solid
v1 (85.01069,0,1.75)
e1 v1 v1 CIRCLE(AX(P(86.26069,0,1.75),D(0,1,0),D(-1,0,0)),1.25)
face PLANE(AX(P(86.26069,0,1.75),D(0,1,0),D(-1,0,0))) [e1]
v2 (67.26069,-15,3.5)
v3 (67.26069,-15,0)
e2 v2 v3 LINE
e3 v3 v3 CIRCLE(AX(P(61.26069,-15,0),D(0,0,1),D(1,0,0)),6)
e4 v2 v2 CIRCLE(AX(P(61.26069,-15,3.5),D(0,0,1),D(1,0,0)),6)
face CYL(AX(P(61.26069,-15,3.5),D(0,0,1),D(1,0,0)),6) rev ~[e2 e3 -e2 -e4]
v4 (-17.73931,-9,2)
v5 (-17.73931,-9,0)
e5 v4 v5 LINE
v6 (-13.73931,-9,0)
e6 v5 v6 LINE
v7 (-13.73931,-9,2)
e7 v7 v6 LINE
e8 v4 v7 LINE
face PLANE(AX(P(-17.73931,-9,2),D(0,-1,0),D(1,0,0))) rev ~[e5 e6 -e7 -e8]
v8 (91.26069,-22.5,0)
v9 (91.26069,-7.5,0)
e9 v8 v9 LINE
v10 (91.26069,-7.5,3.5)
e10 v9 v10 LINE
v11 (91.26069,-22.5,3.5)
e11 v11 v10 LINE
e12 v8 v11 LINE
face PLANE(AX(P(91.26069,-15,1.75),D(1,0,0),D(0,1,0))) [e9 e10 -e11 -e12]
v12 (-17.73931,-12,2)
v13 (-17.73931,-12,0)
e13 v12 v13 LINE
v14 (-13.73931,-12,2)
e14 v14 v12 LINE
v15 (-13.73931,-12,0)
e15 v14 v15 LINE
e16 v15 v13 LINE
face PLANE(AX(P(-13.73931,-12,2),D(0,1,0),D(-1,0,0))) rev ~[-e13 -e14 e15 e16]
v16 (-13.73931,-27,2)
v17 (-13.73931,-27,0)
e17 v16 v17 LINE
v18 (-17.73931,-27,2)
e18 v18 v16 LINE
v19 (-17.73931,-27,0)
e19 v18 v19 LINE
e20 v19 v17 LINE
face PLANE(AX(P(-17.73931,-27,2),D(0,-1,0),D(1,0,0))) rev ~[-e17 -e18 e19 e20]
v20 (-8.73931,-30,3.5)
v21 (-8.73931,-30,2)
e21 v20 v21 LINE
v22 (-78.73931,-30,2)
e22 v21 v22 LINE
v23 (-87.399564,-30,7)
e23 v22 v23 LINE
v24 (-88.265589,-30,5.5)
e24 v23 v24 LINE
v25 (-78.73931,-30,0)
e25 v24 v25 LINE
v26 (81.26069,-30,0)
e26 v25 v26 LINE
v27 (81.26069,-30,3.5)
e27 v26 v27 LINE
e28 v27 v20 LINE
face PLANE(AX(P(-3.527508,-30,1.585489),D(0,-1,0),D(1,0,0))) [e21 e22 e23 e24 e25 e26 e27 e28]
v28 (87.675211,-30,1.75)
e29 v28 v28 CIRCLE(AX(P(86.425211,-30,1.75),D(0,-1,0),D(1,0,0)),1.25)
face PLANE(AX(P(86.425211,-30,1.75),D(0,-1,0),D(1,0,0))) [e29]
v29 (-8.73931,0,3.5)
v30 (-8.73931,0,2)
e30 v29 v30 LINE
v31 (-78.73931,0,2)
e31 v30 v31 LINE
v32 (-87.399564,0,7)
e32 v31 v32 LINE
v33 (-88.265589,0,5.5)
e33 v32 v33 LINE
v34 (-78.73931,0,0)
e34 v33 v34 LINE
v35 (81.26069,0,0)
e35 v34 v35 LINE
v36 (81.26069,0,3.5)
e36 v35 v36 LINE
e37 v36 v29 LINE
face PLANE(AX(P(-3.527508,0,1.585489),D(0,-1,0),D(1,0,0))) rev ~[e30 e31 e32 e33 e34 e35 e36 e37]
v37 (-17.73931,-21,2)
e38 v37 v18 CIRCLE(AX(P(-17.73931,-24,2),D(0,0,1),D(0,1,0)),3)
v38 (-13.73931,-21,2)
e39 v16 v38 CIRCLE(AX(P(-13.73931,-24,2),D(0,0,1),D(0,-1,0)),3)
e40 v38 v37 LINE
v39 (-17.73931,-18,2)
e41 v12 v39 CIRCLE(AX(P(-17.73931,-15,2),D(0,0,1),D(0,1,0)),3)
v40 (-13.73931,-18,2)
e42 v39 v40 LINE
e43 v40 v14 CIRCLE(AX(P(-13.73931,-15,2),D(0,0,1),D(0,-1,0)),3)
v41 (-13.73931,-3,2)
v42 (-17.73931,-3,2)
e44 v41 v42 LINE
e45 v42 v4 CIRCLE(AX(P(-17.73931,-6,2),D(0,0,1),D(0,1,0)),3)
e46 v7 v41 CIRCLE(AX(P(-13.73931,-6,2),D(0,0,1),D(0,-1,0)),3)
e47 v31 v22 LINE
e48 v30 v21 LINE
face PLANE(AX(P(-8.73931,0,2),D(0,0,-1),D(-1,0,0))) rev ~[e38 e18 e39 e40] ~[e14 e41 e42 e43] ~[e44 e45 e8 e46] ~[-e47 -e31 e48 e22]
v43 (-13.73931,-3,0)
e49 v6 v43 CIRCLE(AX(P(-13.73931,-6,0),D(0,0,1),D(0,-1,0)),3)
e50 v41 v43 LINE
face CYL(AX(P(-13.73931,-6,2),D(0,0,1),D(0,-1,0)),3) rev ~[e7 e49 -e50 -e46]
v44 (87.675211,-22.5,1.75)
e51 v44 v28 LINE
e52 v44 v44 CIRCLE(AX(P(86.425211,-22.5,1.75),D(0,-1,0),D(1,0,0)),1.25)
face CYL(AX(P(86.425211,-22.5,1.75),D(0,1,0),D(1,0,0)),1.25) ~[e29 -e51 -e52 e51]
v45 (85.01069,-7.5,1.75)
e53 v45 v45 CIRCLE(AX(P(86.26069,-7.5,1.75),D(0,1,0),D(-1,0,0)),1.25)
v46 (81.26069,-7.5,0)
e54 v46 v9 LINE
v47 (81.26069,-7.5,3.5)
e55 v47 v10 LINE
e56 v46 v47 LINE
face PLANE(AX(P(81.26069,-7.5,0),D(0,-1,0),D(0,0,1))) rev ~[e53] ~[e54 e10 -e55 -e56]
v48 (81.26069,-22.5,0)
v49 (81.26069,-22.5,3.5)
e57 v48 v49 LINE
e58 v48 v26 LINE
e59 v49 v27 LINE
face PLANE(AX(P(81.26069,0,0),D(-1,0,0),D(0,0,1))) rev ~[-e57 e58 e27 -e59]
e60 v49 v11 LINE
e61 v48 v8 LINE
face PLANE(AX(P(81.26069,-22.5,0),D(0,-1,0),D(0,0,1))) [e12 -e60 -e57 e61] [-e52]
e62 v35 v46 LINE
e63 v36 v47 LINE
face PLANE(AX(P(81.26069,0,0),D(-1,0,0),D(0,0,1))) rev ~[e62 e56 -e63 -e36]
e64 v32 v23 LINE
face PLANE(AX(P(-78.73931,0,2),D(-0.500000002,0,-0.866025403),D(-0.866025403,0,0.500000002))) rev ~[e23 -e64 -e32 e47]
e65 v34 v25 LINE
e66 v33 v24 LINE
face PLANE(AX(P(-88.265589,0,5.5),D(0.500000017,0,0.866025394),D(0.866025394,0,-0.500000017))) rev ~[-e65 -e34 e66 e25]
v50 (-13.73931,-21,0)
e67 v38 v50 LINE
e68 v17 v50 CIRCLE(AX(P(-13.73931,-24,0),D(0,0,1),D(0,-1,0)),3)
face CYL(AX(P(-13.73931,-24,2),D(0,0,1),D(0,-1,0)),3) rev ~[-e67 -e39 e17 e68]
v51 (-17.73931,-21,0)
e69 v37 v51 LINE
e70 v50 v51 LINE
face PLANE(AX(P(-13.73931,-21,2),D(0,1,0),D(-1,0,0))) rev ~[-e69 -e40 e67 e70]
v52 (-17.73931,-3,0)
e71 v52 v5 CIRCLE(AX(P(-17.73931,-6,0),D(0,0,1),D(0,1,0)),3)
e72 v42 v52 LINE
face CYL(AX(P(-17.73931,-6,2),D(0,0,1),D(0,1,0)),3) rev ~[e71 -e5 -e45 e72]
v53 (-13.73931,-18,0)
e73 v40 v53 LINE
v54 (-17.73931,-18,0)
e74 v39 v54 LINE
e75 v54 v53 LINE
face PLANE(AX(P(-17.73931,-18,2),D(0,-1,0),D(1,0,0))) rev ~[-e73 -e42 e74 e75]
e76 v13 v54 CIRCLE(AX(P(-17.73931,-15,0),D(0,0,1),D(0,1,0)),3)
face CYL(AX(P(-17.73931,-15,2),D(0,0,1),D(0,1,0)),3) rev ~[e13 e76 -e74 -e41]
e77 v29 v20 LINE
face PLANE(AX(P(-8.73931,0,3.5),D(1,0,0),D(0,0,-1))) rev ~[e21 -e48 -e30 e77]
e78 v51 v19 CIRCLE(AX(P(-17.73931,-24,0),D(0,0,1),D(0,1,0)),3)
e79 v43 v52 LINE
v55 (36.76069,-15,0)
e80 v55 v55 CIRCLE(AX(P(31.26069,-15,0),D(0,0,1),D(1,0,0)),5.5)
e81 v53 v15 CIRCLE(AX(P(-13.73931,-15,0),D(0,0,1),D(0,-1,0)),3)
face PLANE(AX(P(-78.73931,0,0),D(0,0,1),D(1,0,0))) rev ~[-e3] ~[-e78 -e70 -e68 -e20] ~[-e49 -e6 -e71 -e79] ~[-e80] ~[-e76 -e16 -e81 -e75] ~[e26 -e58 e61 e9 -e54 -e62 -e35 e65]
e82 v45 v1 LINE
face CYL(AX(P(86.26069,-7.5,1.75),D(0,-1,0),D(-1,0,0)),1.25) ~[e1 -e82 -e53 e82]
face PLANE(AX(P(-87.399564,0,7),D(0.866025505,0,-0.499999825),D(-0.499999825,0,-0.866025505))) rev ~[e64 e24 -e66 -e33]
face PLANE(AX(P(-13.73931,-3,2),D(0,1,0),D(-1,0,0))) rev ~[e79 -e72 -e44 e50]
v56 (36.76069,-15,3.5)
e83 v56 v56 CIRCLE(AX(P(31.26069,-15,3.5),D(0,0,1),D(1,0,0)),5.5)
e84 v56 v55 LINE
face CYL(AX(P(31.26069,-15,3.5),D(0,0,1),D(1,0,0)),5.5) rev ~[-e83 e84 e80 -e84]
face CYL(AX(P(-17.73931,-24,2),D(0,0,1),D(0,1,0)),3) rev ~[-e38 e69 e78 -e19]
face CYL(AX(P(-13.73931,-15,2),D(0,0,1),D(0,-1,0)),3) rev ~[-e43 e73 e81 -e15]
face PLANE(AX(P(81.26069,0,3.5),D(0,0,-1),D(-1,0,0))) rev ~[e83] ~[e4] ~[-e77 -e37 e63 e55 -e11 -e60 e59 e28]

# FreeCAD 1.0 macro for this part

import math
import FreeCAD as App
import Part
import Sketcher
Q = App.Units.Quantity

doc = App.newDocument("Part")
body = doc.addObject("PartDesign::Body", "Body")

sketch1 = body.newObject("Sketcher::SketchObject", "Sketch")
sketch1.AttachmentSupport = (doc.getObject("XZ_Plane"), [""])
sketch1.MapMode = "FlatFace"
sketch1.addGeometry(Part.LineSegment(App.Vector(-8.7, 2, 0), App.Vector(-78.7, 2, 0)), False)
sketch1.addGeometry(Part.LineSegment(App.Vector(-78.7, 2, 0), App.Vector(-87.4, 7, 0)), False)
sketch1.addGeometry(Part.LineSegment(App.Vector(-87.4, 7, 0), App.Vector(-88.3, 5.5, 0)), False)
sketch1.addGeometry(Part.LineSegment(App.Vector(-88.3, 5.5, 0), App.Vector(-78.7, 0, 0)), False)
sketch1.addGeometry(Part.LineSegment(App.Vector(-78.7, 0, 0), App.Vector(81.3, 0, 0)), False)
sketch1.addGeometry(Part.LineSegment(App.Vector(81.3, 0, 0), App.Vector(81.3, 3.5, 0)), False)
sketch1.addGeometry(Part.LineSegment(App.Vector(81.3, 3.5, 0), App.Vector(-8.7, 3.5, 0)), False)
sketch1.addGeometry(Part.LineSegment(App.Vector(-8.7, 3.5, 0), App.Vector(-8.7, 2, 0)), False)
sketch1.addConstraint(Sketcher.Constraint("Coincident", 0, 2, 1, 1))
sketch1.addConstraint(Sketcher.Constraint("Coincident", 1, 2, 2, 1))
sketch1.addConstraint(Sketcher.Constraint("Coincident", 2, 2, 3, 1))
sketch1.addConstraint(Sketcher.Constraint("Coincident", 3, 2, 4, 1))
sketch1.addConstraint(Sketcher.Constraint("Coincident", 4, 2, 5, 1))
sketch1.addConstraint(Sketcher.Constraint("Coincident", 5, 2, 6, 1))
sketch1.addConstraint(Sketcher.Constraint("Coincident", 6, 2, 7, 1))
sketch1.addConstraint(Sketcher.Constraint("Coincident", 7, 2, 0, 1))
sketch1.addConstraint(Sketcher.Constraint("Horizontal", 0))
sketch1.addConstraint(Sketcher.Constraint("Horizontal", 4))
sketch1.addConstraint(Sketcher.Constraint("Vertical", 5))
sketch1.addConstraint(Sketcher.Constraint("Horizontal", 6))
sketch1.addConstraint(Sketcher.Constraint("Vertical", 7))
sketch1.addConstraint(Sketcher.Constraint("PointOnObject", 3, 2, -1))
sketch1.addConstraint(Sketcher.Constraint("Perpendicular", 1, 2))
sketch1.addConstraint(Sketcher.Constraint("Perpendicular", 2, 3))
sketch1.addConstraint(Sketcher.Constraint("Vertical", 0, 2, 3, 2))
sketch1.addConstraint(Sketcher.Constraint("DistanceX", 0, 2, 0, 1, Q("70 mm")))
sketch1.addConstraint(Sketcher.Constraint("DistanceX", 4, 1, 4, 2, Q("160 mm")))
sketch1.addConstraint(Sketcher.Constraint("Angle", 1, Q("150 deg")))
sketch1.addConstraint(Sketcher.Constraint("Distance", 1, Q("10 mm")))
sketch1.addConstraint(Sketcher.Constraint("Distance", 3, Q("11 mm")))
sketch1.addConstraint(Sketcher.Constraint("DistanceY", 5, 1, 5, 2, Q("3.5 mm")))
sketch1.addConstraint(Sketcher.Constraint("DistanceX", 0, 2, -1, 1, Q("78.73931 mm")))
pad1 = body.newObject("PartDesign::Pad", "Pad")
pad1.Profile = sketch1
pad1.Length = 30

sketch2 = body.newObject("Sketcher::SketchObject", "Sketch001")
sketch2.AttachmentSupport = (doc.getObject("YZ_Plane"), [""])
sketch2.MapMode = "FlatFace"
sketch2.AttachmentOffset = App.Placement(App.Vector(0, 0, 81.26069), App.Rotation())
sketch2.addGeometry(Part.LineSegment(App.Vector(-22.5, 3.5, 0), App.Vector(-22.5, 0, 0)), False)
sketch2.addGeometry(Part.LineSegment(App.Vector(-22.5, 0, 0), App.Vector(-7.5, 0, 0)), False)
sketch2.addGeometry(Part.LineSegment(App.Vector(-7.5, 0, 0), App.Vector(-7.5, 3.5, 0)), False)
sketch2.addGeometry(Part.LineSegment(App.Vector(-7.5, 3.5, 0), App.Vector(-22.5, 3.5, 0)), False)
sketch2.addConstraint(Sketcher.Constraint("Coincident", 0, 2, 1, 1))
sketch2.addConstraint(Sketcher.Constraint("Coincident", 1, 2, 2, 1))
sketch2.addConstraint(Sketcher.Constraint("Coincident", 2, 2, 3, 1))
sketch2.addConstraint(Sketcher.Constraint("Coincident", 3, 2, 0, 1))
sketch2.addConstraint(Sketcher.Constraint("Vertical", 0))
sketch2.addConstraint(Sketcher.Constraint("Horizontal", 1))
sketch2.addConstraint(Sketcher.Constraint("Vertical", 2))
sketch2.addConstraint(Sketcher.Constraint("Horizontal", 3))
sketch2.addConstraint(Sketcher.Constraint("PointOnObject", 0, 2, -1))
sketch2.addConstraint(Sketcher.Constraint("DistanceX", 1, 1, 1, 2, Q("15 mm")))
sketch2.addConstraint(Sketcher.Constraint("DistanceY", 0, 2, 0, 1, Q("3.5 mm")))
sketch2.addConstraint(Sketcher.Constraint("DistanceX", 0, 2, -1, 1, Q("22.5 mm")))
pad2 = body.newObject("PartDesign::Pad", "Pad001")
pad2.Profile = sketch2
pad2.Length = 10

sketch3 = body.newObject("Sketcher::SketchObject", "Sketch002")
sketch3.AttachmentSupport = (doc.getObject("XZ_Plane"), [""])
sketch3.MapMode = "FlatFace"
sketch3.AttachmentOffset = App.Placement(App.Vector(0, 0, 22.5), App.Rotation())
sketch3.addGeometry(Part.Circle(App.Vector(86.4, 1.8, 0), App.Vector(0, 0, 1), 1.2), False)
sketch3.addConstraint(Sketcher.Constraint("Diameter", 0, Q("2.5 mm")))
sketch3.addConstraint(Sketcher.Constraint("DistanceY", -1, 1, 0, 3, Q("1.75 mm")))
sketch3.addConstraint(Sketcher.Constraint("DistanceX", -1, 1, 0, 3, Q("86.425211 mm")))
pad3 = body.newObject("PartDesign::Pad", "Pad002")
pad3.Profile = sketch3
pad3.Length = 7.5

sketch4 = body.newObject("Sketcher::SketchObject", "Sketch003")
sketch4.AttachmentSupport = (doc.getObject("XZ_Plane"), [""])
sketch4.MapMode = "FlatFace"
sketch4.AttachmentOffset = App.Placement(App.Vector(0, 0, 7.5), App.Rotation())
sketch4.addGeometry(Part.Circle(App.Vector(86.3, 1.8, 0), App.Vector(0, 0, 1), 1.2), False)
sketch4.addConstraint(Sketcher.Constraint("Diameter", 0, Q("2.5 mm")))
sketch4.addConstraint(Sketcher.Constraint("DistanceY", -1, 1, 0, 3, Q("1.75 mm")))
sketch4.addConstraint(Sketcher.Constraint("DistanceX", -1, 1, 0, 3, Q("86.26069 mm")))
pad4 = body.newObject("PartDesign::Pad", "Pad003")
pad4.Profile = sketch4
pad4.Length = 7.5
pad4.Reversed = True

sketch5 = body.newObject("Sketcher::SketchObject", "Sketch004")
sketch5.AttachmentSupport = (doc.getObject("XY_Plane"), [""])
sketch5.MapMode = "FlatFace"
sketch5.AttachmentOffset = App.Placement(App.Vector(0, 0, 2), App.Rotation())
sketch5.addGeometry(Part.LineSegment(App.Vector(-17.7, -18, 0), App.Vector(-13.7, -18, 0)), False)
sketch5.addGeometry(Part.ArcOfCircle(Part.Circle(App.Vector(-13.7, -15, 0), App.Vector(0, 0, 1), 3), math.radians(-90), math.radians(90)), False)
sketch5.addGeometry(Part.LineSegment(App.Vector(-13.7, -12, 0), App.Vector(-17.7, -12, 0)), False)
sketch5.addGeometry(Part.ArcOfCircle(Part.Circle(App.Vector(-17.7, -15, 0), App.Vector(0, 0, 1), 3), math.radians(90), math.radians(270)), False)
sketch5.addGeometry(Part.LineSegment(App.Vector(-13.7, -21, 0), App.Vector(-17.7, -21, 0)), False)
sketch5.addGeometry(Part.ArcOfCircle(Part.Circle(App.Vector(-17.7, -24, 0), App.Vector(0, 0, 1), 3), math.radians(90), math.radians(270)), False)
sketch5.addGeometry(Part.LineSegment(App.Vector(-17.7, -27, 0), App.Vector(-13.7, -27, 0)), False)
sketch5.addGeometry(Part.ArcOfCircle(Part.Circle(App.Vector(-13.7, -24, 0), App.Vector(0, 0, 1), 3), math.radians(-90), math.radians(90)), False)
sketch5.addGeometry(Part.ArcOfCircle(Part.Circle(App.Vector(-17.7, -6, 0), App.Vector(0, 0, 1), 3), math.radians(90), math.radians(270)), False)
sketch5.addGeometry(Part.LineSegment(App.Vector(-17.7, -9, 0), App.Vector(-13.7, -9, 0)), False)
sketch5.addGeometry(Part.ArcOfCircle(Part.Circle(App.Vector(-13.7, -6, 0), App.Vector(0, 0, 1), 3), math.radians(-90), math.radians(90)), False)
sketch5.addGeometry(Part.LineSegment(App.Vector(-13.7, -3, 0), App.Vector(-17.7, -3, 0)), False)
sketch5.addConstraint(Sketcher.Constraint("Tangent", 0, 2, 1, 1))
sketch5.addConstraint(Sketcher.Constraint("Tangent", 1, 2, 2, 1))
sketch5.addConstraint(Sketcher.Constraint("Tangent", 2, 2, 3, 1))
sketch5.addConstraint(Sketcher.Constraint("Tangent", 3, 2, 0, 1))
sketch5.addConstraint(Sketcher.Constraint("Tangent", 4, 2, 5, 1))
sketch5.addConstraint(Sketcher.Constraint("Tangent", 5, 2, 6, 1))
sketch5.addConstraint(Sketcher.Constraint("Tangent", 6, 2, 7, 1))
sketch5.addConstraint(Sketcher.Constraint("Tangent", 7, 2, 4, 1))
sketch5.addConstraint(Sketcher.Constraint("Tangent", 8, 2, 9, 1))
sketch5.addConstraint(Sketcher.Constraint("Tangent", 9, 2, 10, 1))
sketch5.addConstraint(Sketcher.Constraint("Tangent", 10, 2, 11, 1))
sketch5.addConstraint(Sketcher.Constraint("Tangent", 11, 2, 8, 1))
sketch5.addConstraint(Sketcher.Constraint("Horizontal", 0))
sketch5.addConstraint(Sketcher.Constraint("Horizontal", 2))
sketch5.addConstraint(Sketcher.Constraint("Horizontal", 4))
sketch5.addConstraint(Sketcher.Constraint("Horizontal", 6))
sketch5.addConstraint(Sketcher.Constraint("Horizontal", 9))
sketch5.addConstraint(Sketcher.Constraint("Horizontal", 11))
sketch5.addConstraint(Sketcher.Constraint("Equal", 3, 5))
sketch5.addConstraint(Sketcher.Constraint("Equal", 7, 8))
sketch5.addConstraint(Sketcher.Constraint("Vertical", 3, 3, 5, 3))
sketch5.addConstraint(Sketcher.Constraint("Vertical", 1, 3, 7, 3))
sketch5.addConstraint(Sketcher.Constraint("Vertical", 5, 3, 8, 3))
sketch5.addConstraint(Sketcher.Constraint("Vertical", 7, 3, 10, 3))
sketch5.addConstraint(Sketcher.Constraint("Radius", 1, Q("3 mm")))
sketch5.addConstraint(Sketcher.Constraint("DistanceX", 0, 1, 0, 2, Q("4 mm")))
sketch5.addConstraint(Sketcher.Constraint("DistanceY", 1, 3, -1, 1, Q("15 mm")))
sketch5.addConstraint(Sketcher.Constraint("DistanceY", 5, 3, -1, 1, Q("24 mm")))
sketch5.addConstraint(Sketcher.Constraint("DistanceY", 8, 3, -1, 1, Q("6 mm")))
sketch5.addConstraint(Sketcher.Constraint("DistanceX", 1, 3, -1, 1, Q("13.73931 mm")))
pocket1 = body.newObject("PartDesign::Pocket", "Pocket")
pocket1.Profile = sketch5
pocket1.Length = 25

sketch6 = body.newObject("Sketcher::SketchObject", "Sketch005")
sketch6.AttachmentSupport = (doc.getObject("XY_Plane"), [""])
sketch6.MapMode = "FlatFace"
sketch6.AttachmentOffset = App.Placement(App.Vector(0, 0, 3.5), App.Rotation())
sketch6.addGeometry(Part.Circle(App.Vector(61, -15, 0), App.Vector(0, 0, 1), 6), False)
sketch6.addGeometry(Part.Circle(App.Vector(31, -15, 0), App.Vector(0, 0, 1), 6), False)
sketch6.addConstraint(Sketcher.Constraint("Horizontal", 0, 3, 1, 3))
sketch6.addConstraint(Sketcher.Constraint("Diameter", 0, Q("12 mm")))
sketch6.addConstraint(Sketcher.Constraint("Diameter", 1, Q("11 mm")))
sketch6.addConstraint(Sketcher.Constraint("DistanceY", 0, 3, -1, 1, Q("15 mm")))
sketch6.addConstraint(Sketcher.Constraint("DistanceX", 1, 3, 0, 3, Q("30 mm")))
sketch6.addConstraint(Sketcher.Constraint("DistanceX", -1, 1, 0, 3, Q("61.26069 mm")))
pocket2 = body.newObject("PartDesign::Pocket", "Pocket001")
pocket2.Profile = sketch6
pocket2.Length = 25

doc.recompute()
